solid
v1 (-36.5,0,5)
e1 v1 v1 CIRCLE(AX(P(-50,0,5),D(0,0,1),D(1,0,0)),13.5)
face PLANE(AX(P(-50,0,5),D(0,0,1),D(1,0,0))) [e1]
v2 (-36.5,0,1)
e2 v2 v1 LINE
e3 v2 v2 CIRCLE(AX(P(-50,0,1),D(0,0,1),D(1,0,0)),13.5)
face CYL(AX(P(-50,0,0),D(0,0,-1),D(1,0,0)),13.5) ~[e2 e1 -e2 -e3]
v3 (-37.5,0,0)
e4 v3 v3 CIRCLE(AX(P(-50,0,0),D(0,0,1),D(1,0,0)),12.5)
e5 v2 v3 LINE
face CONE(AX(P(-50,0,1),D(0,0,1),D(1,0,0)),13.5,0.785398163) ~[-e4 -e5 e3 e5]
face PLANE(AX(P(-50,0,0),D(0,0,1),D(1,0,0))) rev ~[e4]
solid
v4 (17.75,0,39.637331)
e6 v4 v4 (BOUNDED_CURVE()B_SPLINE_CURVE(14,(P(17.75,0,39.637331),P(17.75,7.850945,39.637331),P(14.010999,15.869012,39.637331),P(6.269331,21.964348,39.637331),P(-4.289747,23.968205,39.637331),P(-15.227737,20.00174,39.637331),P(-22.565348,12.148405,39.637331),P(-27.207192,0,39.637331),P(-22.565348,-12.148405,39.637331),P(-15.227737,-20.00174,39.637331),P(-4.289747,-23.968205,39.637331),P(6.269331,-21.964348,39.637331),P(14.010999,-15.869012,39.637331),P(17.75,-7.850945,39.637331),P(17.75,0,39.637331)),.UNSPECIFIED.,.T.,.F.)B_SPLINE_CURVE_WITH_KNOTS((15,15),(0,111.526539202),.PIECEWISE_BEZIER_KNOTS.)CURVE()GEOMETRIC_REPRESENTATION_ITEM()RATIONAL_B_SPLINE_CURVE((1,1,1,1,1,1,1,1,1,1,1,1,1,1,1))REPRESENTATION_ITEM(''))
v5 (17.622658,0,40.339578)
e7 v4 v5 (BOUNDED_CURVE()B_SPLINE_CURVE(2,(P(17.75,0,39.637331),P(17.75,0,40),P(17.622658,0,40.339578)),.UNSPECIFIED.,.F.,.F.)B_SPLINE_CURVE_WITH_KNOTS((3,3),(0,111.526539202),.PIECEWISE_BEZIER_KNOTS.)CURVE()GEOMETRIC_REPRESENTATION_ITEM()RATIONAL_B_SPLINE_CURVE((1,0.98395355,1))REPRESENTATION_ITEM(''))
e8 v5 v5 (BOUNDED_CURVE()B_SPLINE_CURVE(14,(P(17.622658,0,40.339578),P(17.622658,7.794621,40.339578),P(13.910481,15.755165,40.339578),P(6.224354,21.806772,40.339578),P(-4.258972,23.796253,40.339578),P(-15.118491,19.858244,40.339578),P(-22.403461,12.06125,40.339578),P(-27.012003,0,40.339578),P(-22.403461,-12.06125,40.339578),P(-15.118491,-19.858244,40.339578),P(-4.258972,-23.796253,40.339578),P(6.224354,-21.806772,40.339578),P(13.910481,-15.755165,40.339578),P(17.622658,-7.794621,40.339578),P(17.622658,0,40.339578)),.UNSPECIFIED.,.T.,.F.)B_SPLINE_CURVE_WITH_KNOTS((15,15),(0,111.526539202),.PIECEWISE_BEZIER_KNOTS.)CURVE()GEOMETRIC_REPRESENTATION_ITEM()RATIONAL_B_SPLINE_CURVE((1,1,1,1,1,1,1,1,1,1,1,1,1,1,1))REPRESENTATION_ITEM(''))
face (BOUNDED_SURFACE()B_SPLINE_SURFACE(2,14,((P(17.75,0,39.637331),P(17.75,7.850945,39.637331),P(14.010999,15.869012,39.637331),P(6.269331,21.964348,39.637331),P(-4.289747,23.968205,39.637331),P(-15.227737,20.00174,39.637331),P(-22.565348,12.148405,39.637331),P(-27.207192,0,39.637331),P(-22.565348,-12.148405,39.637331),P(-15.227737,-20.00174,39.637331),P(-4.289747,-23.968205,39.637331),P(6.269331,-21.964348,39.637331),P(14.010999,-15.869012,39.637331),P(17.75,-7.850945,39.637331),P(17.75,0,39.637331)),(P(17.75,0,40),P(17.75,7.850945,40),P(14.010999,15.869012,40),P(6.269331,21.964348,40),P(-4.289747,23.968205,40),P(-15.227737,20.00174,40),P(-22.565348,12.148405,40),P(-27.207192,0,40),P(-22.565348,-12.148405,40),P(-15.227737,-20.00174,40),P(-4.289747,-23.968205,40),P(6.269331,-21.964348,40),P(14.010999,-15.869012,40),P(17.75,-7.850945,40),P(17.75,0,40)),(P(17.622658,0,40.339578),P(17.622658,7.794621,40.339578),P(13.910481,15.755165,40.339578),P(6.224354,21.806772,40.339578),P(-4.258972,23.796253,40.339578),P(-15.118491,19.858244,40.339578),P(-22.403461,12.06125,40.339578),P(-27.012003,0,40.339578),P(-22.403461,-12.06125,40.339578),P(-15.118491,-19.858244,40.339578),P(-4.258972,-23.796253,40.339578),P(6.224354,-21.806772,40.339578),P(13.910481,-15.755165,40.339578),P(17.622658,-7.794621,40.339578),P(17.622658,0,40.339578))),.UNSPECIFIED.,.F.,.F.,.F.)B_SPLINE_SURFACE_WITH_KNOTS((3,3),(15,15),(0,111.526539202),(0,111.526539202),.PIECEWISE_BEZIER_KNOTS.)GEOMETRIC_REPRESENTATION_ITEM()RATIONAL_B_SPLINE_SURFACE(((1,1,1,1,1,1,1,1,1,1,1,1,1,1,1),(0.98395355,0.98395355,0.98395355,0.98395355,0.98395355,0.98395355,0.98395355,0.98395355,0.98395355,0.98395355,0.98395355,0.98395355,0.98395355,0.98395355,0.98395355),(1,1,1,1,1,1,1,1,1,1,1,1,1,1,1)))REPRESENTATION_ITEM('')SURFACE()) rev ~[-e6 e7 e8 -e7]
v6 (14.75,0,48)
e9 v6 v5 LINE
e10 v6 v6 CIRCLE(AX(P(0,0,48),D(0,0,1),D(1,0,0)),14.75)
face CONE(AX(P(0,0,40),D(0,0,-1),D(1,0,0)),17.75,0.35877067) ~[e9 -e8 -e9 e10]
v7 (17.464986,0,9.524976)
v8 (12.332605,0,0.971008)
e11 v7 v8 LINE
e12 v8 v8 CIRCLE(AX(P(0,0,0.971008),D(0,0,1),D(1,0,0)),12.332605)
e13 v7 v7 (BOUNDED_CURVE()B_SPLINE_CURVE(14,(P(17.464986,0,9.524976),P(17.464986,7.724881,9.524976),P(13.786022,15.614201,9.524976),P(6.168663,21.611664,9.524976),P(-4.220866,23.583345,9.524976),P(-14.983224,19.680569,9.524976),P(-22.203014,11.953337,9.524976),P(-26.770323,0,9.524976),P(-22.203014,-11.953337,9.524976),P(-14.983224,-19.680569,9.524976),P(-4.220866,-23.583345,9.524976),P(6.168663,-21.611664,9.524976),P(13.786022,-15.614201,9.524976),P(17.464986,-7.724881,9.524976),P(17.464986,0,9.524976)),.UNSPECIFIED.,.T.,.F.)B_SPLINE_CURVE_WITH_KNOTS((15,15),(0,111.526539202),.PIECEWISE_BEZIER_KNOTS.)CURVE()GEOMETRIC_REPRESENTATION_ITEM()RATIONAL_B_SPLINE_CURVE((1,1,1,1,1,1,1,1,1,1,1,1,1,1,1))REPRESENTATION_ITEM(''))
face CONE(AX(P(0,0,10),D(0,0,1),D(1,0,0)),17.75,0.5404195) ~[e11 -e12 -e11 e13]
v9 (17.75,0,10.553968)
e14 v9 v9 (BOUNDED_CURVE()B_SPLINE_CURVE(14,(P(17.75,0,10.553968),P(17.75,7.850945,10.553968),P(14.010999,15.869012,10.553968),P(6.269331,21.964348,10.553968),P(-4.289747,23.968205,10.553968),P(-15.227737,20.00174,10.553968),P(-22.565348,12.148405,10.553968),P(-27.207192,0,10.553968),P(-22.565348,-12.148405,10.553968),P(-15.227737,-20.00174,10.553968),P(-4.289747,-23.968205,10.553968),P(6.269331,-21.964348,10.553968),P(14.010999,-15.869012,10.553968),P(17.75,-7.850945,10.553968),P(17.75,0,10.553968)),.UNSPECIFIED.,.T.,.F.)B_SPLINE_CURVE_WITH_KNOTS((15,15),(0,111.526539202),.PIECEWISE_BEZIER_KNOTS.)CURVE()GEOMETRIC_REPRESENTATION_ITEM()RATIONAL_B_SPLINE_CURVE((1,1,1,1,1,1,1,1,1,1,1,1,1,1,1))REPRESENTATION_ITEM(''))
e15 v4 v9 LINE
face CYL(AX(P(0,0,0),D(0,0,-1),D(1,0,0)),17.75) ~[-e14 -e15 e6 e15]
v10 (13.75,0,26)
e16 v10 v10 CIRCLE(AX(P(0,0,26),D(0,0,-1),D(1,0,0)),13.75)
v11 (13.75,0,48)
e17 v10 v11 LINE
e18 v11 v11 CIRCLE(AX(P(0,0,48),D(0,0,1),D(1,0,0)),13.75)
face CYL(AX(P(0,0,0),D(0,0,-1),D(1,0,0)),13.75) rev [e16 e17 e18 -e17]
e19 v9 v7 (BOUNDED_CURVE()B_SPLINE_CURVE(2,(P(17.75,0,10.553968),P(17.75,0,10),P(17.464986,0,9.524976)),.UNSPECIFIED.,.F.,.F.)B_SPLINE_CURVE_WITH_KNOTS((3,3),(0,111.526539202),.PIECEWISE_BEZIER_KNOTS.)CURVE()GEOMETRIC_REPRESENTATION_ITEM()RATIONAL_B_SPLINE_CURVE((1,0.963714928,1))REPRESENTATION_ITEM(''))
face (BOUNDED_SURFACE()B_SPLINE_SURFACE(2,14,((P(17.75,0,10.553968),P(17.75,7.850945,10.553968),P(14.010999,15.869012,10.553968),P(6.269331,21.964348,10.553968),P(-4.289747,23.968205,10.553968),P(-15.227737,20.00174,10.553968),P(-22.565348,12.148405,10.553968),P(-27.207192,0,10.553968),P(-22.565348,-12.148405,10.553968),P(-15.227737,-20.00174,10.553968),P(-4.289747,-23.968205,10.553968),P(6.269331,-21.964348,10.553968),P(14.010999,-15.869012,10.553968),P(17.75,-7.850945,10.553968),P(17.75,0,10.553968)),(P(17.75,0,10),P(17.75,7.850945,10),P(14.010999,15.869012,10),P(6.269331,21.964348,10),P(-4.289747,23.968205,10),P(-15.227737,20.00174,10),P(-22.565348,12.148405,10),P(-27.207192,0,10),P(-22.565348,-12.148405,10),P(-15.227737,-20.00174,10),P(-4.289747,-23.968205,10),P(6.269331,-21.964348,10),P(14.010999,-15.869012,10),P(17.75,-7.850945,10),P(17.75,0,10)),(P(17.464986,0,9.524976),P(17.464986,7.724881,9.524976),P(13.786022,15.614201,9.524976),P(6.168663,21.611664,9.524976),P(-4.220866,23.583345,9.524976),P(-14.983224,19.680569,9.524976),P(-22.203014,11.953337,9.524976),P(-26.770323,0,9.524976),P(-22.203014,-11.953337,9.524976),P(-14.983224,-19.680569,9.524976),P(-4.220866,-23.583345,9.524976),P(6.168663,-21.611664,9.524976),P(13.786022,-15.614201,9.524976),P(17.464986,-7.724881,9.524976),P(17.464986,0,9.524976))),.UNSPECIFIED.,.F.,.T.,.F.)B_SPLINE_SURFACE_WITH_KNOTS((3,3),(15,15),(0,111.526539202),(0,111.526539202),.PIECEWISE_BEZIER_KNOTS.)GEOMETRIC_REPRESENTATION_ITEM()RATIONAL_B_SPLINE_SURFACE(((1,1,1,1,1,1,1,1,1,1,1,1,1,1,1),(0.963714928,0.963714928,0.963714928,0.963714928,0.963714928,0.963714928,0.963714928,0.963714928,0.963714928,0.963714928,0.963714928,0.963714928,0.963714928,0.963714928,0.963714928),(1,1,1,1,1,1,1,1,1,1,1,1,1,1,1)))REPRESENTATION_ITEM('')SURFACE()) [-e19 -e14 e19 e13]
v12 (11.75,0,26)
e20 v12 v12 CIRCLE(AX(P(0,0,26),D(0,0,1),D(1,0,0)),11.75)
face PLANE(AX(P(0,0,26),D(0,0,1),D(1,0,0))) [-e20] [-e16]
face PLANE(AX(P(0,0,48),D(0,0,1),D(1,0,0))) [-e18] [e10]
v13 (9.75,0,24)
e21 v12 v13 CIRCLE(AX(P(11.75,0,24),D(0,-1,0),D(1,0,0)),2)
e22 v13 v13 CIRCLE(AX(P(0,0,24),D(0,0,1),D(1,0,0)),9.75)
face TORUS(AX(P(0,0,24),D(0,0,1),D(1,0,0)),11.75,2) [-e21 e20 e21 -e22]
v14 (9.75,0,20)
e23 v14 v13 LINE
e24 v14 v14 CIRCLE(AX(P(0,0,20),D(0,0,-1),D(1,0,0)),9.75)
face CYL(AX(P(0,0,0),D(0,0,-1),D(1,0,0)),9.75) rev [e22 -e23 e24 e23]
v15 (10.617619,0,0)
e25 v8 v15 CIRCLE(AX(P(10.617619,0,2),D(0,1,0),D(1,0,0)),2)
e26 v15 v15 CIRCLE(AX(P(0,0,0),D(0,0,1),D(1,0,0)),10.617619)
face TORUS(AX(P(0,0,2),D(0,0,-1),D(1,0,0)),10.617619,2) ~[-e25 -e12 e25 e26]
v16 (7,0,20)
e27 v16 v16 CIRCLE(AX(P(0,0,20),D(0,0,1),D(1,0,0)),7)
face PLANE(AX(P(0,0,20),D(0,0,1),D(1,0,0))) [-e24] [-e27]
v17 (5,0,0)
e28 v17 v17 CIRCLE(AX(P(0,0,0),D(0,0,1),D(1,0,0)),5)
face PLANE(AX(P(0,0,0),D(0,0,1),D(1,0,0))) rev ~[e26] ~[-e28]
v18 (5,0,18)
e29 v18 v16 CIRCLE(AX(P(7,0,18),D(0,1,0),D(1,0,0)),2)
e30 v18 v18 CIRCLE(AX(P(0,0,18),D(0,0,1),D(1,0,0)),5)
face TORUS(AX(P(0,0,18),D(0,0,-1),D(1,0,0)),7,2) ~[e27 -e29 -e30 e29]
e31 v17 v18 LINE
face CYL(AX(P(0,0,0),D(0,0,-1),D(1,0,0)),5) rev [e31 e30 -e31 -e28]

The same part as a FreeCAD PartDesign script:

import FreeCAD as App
import Part
import Sketcher
from FreeCAD import Vector
Q = App.Units.Quantity


def edges_at(feature, points):
    """Names of the edges that pass closest to the given points."""
    edges = feature.Shape.Edges
    near = lambda p: min(range(len(edges)), key=lambda i: edges[i].distToShape(Part.Vertex(*p))[0])
    return sorted({f"Edge{near(p) + 1}" for p in points})

doc = App.newDocument("Part")
body = doc.addObject("PartDesign::Body", "Body")

# Sketch on XY plane
sketch1 = body.newObject("Sketcher::SketchObject", "Sketch")
sketch1.AttachmentSupport = (doc.getObject("XY_Plane"), [""])
sketch1.MapMode = "FlatFace"
sketch1.addGeometry(Part.Circle(Vector(0, 0, 0), Vector(0, 0, 1), 18), False)
sketch1.addGeometry(Part.Circle(Vector(0, 0, 0), Vector(0, 0, 1), 5), False)
sketch1.addConstraint(Sketcher.Constraint("Coincident", 0, 3, -1, 1))
sketch1.addConstraint(Sketcher.Constraint("Coincident", 1, 3, -1, 1))
sketch1.addConstraint(Sketcher.Constraint("Diameter", 1, Q("10 mm")))
sketch1.addConstraint(Sketcher.Constraint("Diameter", 0, Q("35.5 mm")))
pad1 = body.newObject("PartDesign::Pad", "Pad")
pad1.Profile = sketch1
pad1.Length = 20

# Sketch on XY plane
sketch2 = body.newObject("Sketcher::SketchObject", "Sketch001")
sketch2.AttachmentSupport = (doc.getObject("XY_Plane"), [""])
sketch2.MapMode = "FlatFace"
sketch2.addGeometry(Part.Circle(Vector(0, 0, 0), Vector(0, 0, 1), 18), False)
sketch2.addGeometry(Part.Circle(Vector(0, 0, 0), Vector(0, 0, 1), 10), False)
sketch2.addConstraint(Sketcher.Constraint("Coincident", 0, 3, -1, 1))
sketch2.addConstraint(Sketcher.Constraint("Coincident", 1, 3, -1, 1))
sketch2.addConstraint(Sketcher.Constraint("Diameter", 0, Q("35.5 mm")))
sketch2.addConstraint(Sketcher.Constraint("Diameter", 1, Q("19.5 mm")))
pad2 = body.newObject("PartDesign::Pad", "Pad001")
pad2.Profile = sketch2
pad2.Length = 26

# Sketch on XY plane
sketch3 = body.newObject("Sketcher::SketchObject", "Sketch002")
sketch3.AttachmentSupport = (doc.getObject("XY_Plane"), [""])
sketch3.MapMode = "FlatFace"
sketch3.addGeometry(Part.Circle(Vector(0, 0, 0), Vector(0, 0, 1), 18), False)
sketch3.addGeometry(Part.Circle(Vector(0, 0, 0), Vector(0, 0, 1), 14), False)
sketch3.addConstraint(Sketcher.Constraint("Coincident", 0, 3, -1, 1))
sketch3.addConstraint(Sketcher.Constraint("Coincident", 1, 3, -1, 1))
sketch3.addConstraint(Sketcher.Constraint("Diameter", 0, Q("35.5 mm")))
sketch3.addConstraint(Sketcher.Constraint("Diameter", 1, Q("27.5 mm")))
pad3 = body.newObject("PartDesign::Pad", "Pad002")
pad3.Profile = sketch3
pad3.Length = 48
doc.recompute()

chamfer = body.newObject("PartDesign::Chamfer", "Chamfer")
chamfer.Base = (pad3, edges_at(pad3, [(-17.75, 0, 0)]))
chamfer.ChamferType = "Two distances"
chamfer.Size = 10
chamfer.Size2 = 6
chamfer.FlipDirection = True
doc.recompute()

chamfer2 = body.newObject("PartDesign::Chamfer", "Chamfer001")
chamfer2.Base = (chamfer, edges_at(chamfer, [(-17.75, 0, 48)]))
chamfer2.ChamferType = "Two distances"
chamfer2.Size = 3
chamfer2.Size2 = 8
chamfer2.FlipDirection = True
doc.recompute()

fillet = body.newObject("PartDesign::Fillet", "Fillet")
fillet.Base = (chamfer2, edges_at(chamfer2, [
    (-9.75, 0, 26),
    (-5, 0, 20),
    (14.75, 0, 5),
    (-17.75, 0, 10),
    (-11.75, 0, 0),
    (-17.75, 0, 40),
]))
fillet.Radius = 2
body2 = doc.addObject("PartDesign::Body", "Body001")

# Sketch on XY plane
sketch4 = body2.newObject("Sketcher::SketchObject", "Sketch003")
sketch4.AttachmentSupport = (doc.getObject("XY_Plane001"), [""])
sketch4.MapMode = "FlatFace"
sketch4.addGeometry(Part.Circle(Vector(-50, 0, 0), Vector(0, 0, 1), 14), False)
sketch4.addConstraint(Sketcher.Constraint("PointOnObject", 0, 3, -1))
sketch4.addConstraint(Sketcher.Constraint("Diameter", 0, Q("27 mm")))
sketch4.addConstraint(Sketcher.Constraint("DistanceX", 0, 3, -1, 1, Q("50 mm")))
pad4 = body2.newObject("PartDesign::Pad", "Pad003")
pad4.Profile = sketch4
pad4.Length = 5
doc.recompute()

chamfer3 = body2.newObject("PartDesign::Chamfer", "Chamfer002")
chamfer3.Base = (pad4, edges_at(pad4, [(-63.5, 0, 0)]))
chamfer3.Size = 1

doc.recompute()
